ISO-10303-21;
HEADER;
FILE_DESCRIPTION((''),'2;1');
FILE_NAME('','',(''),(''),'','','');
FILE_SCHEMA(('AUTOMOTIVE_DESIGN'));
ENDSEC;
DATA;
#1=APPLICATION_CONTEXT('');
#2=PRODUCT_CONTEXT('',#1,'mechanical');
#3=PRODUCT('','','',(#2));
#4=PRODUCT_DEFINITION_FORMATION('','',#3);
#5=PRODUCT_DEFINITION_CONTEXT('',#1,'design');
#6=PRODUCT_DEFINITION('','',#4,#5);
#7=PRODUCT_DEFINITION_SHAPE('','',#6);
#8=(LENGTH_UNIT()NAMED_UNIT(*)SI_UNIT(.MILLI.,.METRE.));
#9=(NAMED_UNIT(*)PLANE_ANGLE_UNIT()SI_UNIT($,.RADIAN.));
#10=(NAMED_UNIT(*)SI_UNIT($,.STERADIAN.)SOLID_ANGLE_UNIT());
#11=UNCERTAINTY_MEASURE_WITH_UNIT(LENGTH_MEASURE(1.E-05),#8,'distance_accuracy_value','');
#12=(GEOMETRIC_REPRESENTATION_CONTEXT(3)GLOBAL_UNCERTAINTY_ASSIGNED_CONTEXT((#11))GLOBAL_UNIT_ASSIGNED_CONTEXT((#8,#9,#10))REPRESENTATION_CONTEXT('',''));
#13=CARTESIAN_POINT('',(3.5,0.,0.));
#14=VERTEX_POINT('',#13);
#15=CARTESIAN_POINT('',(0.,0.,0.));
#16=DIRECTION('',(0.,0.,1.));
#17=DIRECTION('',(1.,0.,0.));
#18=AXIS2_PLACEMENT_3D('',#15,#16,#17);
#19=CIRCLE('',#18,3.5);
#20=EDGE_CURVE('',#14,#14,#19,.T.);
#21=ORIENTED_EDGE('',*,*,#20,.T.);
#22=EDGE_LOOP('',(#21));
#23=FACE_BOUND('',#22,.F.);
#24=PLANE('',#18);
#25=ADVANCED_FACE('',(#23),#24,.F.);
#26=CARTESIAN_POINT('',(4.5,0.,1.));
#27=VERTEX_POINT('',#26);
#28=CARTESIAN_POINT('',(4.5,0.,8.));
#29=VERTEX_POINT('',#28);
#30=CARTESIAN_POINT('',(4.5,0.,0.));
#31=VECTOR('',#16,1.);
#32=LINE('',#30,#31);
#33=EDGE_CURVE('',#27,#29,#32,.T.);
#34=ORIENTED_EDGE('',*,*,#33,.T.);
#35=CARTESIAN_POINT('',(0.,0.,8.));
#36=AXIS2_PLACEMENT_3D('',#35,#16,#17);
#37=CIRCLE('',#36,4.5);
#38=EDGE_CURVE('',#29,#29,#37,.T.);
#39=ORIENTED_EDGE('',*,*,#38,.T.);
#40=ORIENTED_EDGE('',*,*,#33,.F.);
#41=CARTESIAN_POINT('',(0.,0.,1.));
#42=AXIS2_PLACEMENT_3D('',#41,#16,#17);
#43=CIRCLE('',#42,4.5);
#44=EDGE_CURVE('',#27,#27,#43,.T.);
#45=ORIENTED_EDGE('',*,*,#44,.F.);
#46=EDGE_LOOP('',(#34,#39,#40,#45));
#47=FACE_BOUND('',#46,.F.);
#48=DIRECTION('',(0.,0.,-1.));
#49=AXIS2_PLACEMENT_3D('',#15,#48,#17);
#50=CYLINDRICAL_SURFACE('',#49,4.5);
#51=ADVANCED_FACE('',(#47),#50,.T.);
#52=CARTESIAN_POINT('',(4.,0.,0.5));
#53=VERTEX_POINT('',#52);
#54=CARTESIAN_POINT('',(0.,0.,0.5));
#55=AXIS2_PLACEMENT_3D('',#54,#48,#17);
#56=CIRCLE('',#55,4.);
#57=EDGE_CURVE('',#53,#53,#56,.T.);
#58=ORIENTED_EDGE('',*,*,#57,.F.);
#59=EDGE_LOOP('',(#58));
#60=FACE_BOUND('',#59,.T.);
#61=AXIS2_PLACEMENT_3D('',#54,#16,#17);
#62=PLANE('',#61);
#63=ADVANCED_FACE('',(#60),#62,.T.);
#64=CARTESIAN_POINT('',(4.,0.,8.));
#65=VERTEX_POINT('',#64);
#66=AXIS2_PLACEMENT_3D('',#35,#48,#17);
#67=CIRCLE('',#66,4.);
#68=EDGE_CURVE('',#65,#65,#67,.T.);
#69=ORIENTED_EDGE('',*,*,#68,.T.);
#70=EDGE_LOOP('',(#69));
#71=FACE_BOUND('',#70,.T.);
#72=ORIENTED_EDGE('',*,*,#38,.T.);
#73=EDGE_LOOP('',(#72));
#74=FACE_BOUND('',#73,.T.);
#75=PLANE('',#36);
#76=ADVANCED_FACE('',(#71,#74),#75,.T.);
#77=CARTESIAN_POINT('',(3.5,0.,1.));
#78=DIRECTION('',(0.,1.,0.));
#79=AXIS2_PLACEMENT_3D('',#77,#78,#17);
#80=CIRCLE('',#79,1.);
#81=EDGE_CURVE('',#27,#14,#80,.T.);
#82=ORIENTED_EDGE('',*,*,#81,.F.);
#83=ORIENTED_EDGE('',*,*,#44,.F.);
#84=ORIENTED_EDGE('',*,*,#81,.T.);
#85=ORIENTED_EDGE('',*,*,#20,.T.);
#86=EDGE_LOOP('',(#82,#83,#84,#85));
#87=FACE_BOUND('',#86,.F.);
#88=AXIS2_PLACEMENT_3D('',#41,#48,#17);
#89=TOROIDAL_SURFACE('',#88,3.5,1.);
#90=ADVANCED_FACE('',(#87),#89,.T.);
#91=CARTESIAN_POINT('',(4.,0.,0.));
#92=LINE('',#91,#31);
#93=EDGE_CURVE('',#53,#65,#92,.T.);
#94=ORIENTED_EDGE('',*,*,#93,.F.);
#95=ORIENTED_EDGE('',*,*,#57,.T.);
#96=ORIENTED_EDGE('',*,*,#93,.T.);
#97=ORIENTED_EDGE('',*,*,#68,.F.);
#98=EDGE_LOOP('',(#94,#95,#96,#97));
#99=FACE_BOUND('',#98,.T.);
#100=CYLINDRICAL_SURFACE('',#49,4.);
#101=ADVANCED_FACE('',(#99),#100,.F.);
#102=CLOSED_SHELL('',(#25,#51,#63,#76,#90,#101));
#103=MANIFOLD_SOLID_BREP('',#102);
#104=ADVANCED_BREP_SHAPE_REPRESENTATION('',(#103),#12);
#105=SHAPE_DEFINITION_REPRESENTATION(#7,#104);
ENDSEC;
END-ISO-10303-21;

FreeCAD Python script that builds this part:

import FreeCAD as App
import Part
import Sketcher
from FreeCAD import Vector
Q = App.Units.Quantity


def edges_at(feature, points):
    """Names of the edges that pass closest to the given points."""
    edges = feature.Shape.Edges
    near = lambda p: min(range(len(edges)), key=lambda i: edges[i].distToShape(Part.Vertex(*p))[0])
    return sorted({f"Edge{near(p) + 1}" for p in points})


def faces_at(feature, points):
    """Names of the faces that lie closest to the given points."""
    faces = feature.Shape.Faces
    near = lambda p: min(range(len(faces)), key=lambda i: faces[i].distToShape(Part.Vertex(*p))[0])
    return sorted({f"Face{near(p) + 1}" for p in points})

doc = App.newDocument("Part")
params = doc.addObject("Spreadsheet::Sheet", "Params")
for row, (alias, value) in enumerate([
    ("sketch1_diameter", "9 mm"),
    ("pad1_length", "8 mm"),
    ("thickness_wall", "0.5 mm"),
    ("fillet_radius", "1 mm"),
], start=1):
    params.set(f"A{row}", alias)
    params.set(f"B{row}", "=" + value)
    params.setAlias(f"B{row}", alias)

body = doc.addObject("PartDesign::Body", "Body")

# Sketch on XY plane
sketch1 = doc.addObject("Sketcher::SketchObject", "Sketch")
body.addObject(sketch1)
sketch1.AttachmentSupport = (doc.XY_Plane, [""])
sketch1.MapMode = "FlatFace"
sketch1.addGeometry(Part.Circle(Vector(0, 0, 0), Vector(0, 0, 1), 4.5), False)
sketch1.addConstraint(Sketcher.Constraint("Coincident", 0, 3, -1, 1))
sketch1.addConstraint(Sketcher.Constraint("Diameter", 0, Q("9 mm")))
sketch1.setExpression("Constraints[1]", "Params.sketch1_diameter")
pad1 = doc.addObject("PartDesign::Pad", "Pad")
body.addObject(pad1)
pad1.Profile = sketch1
pad1.setExpression("Length", "Params.pad1_length")
doc.recompute()

thickness = doc.addObject("PartDesign::Thickness", "Thickness")
body.addObject(thickness)
thickness.Base = (pad1, faces_at(pad1, [(0.181, 1.316, 8)]))
thickness.setExpression("Value", "Params.thickness_wall")
thickness.Reversed = True
thickness.Join = "Intersection"
doc.recompute()

fillet = doc.addObject("PartDesign::Fillet", "Fillet")
body.addObject(fillet)
fillet.Base = (thickness, edges_at(thickness, [(-4.5, 0, 0)]))
fillet.setExpression("Radius", "Params.fillet_radius")

doc.recompute()
